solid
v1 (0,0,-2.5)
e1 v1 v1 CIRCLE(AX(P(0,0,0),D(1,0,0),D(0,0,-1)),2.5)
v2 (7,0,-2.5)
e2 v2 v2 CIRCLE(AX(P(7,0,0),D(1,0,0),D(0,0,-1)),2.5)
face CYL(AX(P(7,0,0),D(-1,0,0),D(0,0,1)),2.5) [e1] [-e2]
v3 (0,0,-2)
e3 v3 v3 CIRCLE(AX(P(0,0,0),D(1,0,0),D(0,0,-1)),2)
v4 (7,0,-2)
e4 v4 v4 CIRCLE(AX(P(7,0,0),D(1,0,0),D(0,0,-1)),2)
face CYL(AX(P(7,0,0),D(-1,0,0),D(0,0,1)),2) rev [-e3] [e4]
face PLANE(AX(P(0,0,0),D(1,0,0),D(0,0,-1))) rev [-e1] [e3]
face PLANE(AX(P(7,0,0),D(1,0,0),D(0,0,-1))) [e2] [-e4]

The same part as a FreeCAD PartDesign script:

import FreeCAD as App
import Part
import Sketcher

doc = App.newDocument("Part")
body = doc.addObject("PartDesign::Body", "Body")

sketch1 = body.newObject("Sketcher::SketchObject", "Sketch")
sketch1.AttachmentSupport = (doc.getObject("YZ_Plane"), [""])
sketch1.MapMode = "FlatFace"
sketch1.addGeometry([
    Part.Circle(App.Vector(0, 0, 0), App.Vector(0, 0, 1), 2.5),
    Part.Circle(App.Vector(0, 0, 0), App.Vector(0, 0, 1), 2),
], False)
sketch1.addConstraint([
    Sketcher.Constraint("Coincident", 0, 3, -1, 1),
    Sketcher.Constraint("Coincident", 1, 3, -1, 1),
    Sketcher.Constraint("Diameter", 0, 5.0),
    Sketcher.Constraint("Diameter", 1, 4.0),
])
pad1 = body.newObject("PartDesign::Pad", "Pad")
pad1.Profile = sketch1
pad1.Length = 7

doc.recompute()
